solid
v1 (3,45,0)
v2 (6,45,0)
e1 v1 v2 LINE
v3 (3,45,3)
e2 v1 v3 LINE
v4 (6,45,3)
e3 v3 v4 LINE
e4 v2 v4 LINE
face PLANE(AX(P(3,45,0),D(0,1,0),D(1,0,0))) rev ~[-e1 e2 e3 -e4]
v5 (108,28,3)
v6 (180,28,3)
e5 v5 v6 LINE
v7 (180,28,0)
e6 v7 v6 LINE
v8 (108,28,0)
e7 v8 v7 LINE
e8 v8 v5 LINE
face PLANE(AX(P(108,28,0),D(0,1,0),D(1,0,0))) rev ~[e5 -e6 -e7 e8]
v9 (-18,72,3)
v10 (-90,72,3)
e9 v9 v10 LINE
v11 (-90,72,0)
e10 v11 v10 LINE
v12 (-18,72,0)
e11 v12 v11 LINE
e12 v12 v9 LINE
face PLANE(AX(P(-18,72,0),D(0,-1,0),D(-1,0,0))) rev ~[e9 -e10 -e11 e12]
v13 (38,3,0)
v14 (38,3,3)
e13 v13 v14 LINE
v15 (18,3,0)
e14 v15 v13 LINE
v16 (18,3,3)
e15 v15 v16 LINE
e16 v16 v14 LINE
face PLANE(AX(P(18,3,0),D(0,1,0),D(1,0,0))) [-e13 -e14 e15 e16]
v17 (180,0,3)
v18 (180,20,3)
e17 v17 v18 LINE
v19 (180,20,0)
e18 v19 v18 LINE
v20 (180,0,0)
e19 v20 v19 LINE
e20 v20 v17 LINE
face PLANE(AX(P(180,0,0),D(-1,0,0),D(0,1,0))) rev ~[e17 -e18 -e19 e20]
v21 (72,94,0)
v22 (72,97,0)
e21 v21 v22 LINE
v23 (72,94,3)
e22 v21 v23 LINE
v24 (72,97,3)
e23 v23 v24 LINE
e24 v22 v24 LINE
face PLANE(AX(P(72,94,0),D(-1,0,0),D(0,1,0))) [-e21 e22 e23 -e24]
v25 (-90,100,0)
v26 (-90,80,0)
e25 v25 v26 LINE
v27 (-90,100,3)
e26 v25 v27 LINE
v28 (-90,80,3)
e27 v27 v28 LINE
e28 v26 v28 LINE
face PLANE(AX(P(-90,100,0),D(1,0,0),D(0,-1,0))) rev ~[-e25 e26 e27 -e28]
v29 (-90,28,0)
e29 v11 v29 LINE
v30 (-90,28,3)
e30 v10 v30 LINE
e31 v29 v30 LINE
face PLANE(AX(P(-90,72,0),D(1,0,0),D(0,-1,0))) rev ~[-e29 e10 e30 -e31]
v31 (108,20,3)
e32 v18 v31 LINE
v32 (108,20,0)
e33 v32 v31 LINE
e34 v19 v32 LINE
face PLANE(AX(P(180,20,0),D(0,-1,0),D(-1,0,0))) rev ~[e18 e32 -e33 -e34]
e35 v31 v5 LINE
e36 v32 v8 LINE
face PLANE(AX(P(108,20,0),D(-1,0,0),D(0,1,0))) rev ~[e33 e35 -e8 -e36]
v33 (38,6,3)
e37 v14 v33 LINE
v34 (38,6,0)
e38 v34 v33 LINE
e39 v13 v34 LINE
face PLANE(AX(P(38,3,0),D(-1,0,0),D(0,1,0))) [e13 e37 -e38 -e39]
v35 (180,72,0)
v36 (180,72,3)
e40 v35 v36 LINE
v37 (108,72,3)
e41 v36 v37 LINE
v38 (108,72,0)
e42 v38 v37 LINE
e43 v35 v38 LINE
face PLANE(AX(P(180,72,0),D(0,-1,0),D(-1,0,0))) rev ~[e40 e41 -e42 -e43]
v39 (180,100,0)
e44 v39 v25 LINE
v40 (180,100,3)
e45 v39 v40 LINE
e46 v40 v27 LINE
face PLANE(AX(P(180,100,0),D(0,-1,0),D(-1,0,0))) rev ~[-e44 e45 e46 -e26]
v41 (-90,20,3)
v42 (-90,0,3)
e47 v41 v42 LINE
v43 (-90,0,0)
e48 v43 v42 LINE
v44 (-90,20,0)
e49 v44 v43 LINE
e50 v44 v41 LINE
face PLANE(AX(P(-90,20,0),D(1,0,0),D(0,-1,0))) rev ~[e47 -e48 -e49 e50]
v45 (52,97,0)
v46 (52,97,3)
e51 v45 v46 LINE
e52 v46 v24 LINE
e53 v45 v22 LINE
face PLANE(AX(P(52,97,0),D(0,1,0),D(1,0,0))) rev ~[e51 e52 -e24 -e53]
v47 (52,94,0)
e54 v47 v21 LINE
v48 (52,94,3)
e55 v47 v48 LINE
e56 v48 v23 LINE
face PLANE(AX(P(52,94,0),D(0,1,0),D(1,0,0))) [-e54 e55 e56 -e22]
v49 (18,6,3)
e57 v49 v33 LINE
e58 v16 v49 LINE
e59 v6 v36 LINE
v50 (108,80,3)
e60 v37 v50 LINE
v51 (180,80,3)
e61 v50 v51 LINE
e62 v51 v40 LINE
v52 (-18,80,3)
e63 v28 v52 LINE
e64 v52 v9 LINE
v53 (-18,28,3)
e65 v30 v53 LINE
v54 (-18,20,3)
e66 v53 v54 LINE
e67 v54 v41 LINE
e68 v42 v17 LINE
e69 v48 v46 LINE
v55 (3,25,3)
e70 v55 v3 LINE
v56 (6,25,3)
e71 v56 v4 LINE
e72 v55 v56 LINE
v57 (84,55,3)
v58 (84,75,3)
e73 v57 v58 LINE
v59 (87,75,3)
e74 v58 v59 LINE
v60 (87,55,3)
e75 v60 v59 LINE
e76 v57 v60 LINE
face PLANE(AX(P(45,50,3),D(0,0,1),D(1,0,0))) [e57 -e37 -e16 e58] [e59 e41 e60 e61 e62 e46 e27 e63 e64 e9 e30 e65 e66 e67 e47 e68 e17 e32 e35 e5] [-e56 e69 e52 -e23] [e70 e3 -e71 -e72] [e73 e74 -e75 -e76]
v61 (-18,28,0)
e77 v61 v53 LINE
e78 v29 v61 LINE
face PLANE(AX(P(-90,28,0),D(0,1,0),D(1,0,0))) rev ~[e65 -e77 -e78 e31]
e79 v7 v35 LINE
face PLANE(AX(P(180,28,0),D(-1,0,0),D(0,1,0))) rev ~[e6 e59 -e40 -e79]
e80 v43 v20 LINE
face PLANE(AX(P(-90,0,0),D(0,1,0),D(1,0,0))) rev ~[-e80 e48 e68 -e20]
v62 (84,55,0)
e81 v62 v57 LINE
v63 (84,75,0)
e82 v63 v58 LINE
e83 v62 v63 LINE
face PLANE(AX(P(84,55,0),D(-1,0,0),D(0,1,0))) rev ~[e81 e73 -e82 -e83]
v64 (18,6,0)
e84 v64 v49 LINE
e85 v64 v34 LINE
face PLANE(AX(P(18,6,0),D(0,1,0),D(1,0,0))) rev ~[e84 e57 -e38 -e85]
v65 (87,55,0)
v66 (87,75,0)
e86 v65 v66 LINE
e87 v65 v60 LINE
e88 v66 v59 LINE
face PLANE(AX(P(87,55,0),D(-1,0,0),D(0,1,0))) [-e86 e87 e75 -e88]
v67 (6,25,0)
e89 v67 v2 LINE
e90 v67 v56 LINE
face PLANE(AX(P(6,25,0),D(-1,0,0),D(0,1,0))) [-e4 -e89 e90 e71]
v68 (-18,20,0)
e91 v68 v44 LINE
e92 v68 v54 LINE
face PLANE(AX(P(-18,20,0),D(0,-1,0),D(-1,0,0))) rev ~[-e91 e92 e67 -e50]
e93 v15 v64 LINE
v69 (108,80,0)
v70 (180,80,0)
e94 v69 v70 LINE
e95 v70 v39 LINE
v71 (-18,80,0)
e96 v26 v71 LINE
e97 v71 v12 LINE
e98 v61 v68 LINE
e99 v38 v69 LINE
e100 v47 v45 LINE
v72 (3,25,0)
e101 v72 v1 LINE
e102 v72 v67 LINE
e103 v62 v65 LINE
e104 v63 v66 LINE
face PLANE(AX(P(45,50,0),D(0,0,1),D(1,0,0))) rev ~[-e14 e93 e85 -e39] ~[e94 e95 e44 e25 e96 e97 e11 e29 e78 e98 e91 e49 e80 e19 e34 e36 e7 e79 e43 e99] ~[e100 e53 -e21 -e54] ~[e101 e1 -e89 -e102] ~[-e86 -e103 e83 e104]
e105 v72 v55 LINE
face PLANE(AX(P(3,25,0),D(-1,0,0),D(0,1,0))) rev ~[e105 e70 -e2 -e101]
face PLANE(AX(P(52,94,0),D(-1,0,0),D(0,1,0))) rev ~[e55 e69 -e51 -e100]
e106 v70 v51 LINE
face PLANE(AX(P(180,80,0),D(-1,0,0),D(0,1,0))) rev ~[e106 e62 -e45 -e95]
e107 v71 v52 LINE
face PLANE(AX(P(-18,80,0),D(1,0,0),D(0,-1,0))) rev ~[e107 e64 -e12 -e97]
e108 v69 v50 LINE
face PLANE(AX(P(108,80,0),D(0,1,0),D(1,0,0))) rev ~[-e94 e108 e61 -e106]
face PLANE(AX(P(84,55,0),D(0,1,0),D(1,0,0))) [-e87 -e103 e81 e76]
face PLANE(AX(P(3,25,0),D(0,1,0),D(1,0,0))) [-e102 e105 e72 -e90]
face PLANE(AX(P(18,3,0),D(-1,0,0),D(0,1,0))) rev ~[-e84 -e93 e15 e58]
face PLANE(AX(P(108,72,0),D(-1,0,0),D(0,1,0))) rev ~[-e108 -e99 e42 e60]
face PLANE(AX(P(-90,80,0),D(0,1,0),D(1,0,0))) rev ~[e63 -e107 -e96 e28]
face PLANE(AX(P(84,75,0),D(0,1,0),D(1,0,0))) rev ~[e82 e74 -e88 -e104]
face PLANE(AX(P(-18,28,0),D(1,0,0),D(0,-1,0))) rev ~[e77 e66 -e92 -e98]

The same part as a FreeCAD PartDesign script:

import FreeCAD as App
import Part
import Sketcher

V = App.Vector
Q = App.Units.Quantity

doc = App.newDocument("Part")
params = doc.addObject("Spreadsheet::Sheet", "Params")
for row, (alias, value) in enumerate([
    ("sketch1_width", "72 mm"),
    ("sketch1_width2", "270 mm"),
    ("sketch1_width3", "20 mm"),
    ("sketch1_width4", "3 mm"),
    ("sketch1_height", "8 mm"),
    ("pad1_length", "3 mm"),
], start=1):
    params.set(f"A{row}", alias)
    params.set(f"B{row}", "=" + value)
    params.setAlias(f"B{row}", alias)

body = doc.addObject("PartDesign::Body", "Body")

# Sketch on XY plane
sketch1 = body.newObject("Sketcher::SketchObject", "Sketch")
sketch1.AttachmentSupport = (doc.getObject("XY_Plane"), [""])
sketch1.MapMode = "FlatFace"
sketch1.addGeometry([
    Part.LineSegment(V(180, 0, 0), V(180, 20, 0)),  # 0
    Part.LineSegment(V(180, 20, 0), V(108, 20, 0)),  # 1
    Part.LineSegment(V(108, 20, 0), V(108, 28, 0)),  # 2
    Part.LineSegment(V(108, 28, 0), V(180, 28, 0)),  # 3
    Part.LineSegment(V(180, 28, 0), V(180, 72, 0)),  # 4
    Part.LineSegment(V(180, 72, 0), V(108, 72, 0)),  # 5
    Part.LineSegment(V(108, 72, 0), V(108, 80, 0)),  # 6
    Part.LineSegment(V(108, 80, 0), V(180, 80, 0)),  # 7
    Part.LineSegment(V(180, 80, 0), V(180, 100, 0)),  # 8
    Part.LineSegment(V(180, 100, 0), V(-90, 100, 0)),  # 9
    Part.LineSegment(V(-90, 100, 0), V(-90, 80, 0)),  # 10
    Part.LineSegment(V(-90, 80, 0), V(-18, 80, 0)),  # 11
    Part.LineSegment(V(-18, 80, 0), V(-18, 72, 0)),  # 12
    Part.LineSegment(V(-18, 72, 0), V(-90, 72, 0)),  # 13
    Part.LineSegment(V(-90, 72, 0), V(-90, 28, 0)),  # 14
    Part.LineSegment(V(-90, 28, 0), V(-18, 28, 0)),  # 15
    Part.LineSegment(V(-18, 28, 0), V(-18, 20, 0)),  # 16
    Part.LineSegment(V(-18, 20, 0), V(-90, 20, 0)),  # 17
    Part.LineSegment(V(-90, 20, 0), V(-90, 0, 0)),  # 18
    Part.LineSegment(V(-90, 0, 0), V(180, 0, 0)),  # 19
    Part.LineSegment(V(38, 3, 0), V(18, 3, 0)),  # 20
    Part.LineSegment(V(18, 3, 0), V(18, 6, 0)),  # 21
    Part.LineSegment(V(18, 6, 0), V(38, 6, 0)),  # 22
    Part.LineSegment(V(38, 6, 0), V(38, 3, 0)),  # 23
    Part.LineSegment(V(6, 25, 0), V(3, 25, 0)),  # 24
    Part.LineSegment(V(3, 25, 0), V(3, 45, 0)),  # 25
    Part.LineSegment(V(3, 45, 0), V(6, 45, 0)),  # 26
    Part.LineSegment(V(6, 45, 0), V(6, 25, 0)),  # 27
    Part.LineSegment(V(87, 55, 0), V(84, 55, 0)),  # 28
    Part.LineSegment(V(84, 55, 0), V(84, 75, 0)),  # 29
    Part.LineSegment(V(84, 75, 0), V(87, 75, 0)),  # 30
    Part.LineSegment(V(87, 75, 0), V(87, 55, 0)),  # 31
    Part.LineSegment(V(72, 94, 0), V(52, 94, 0)),  # 32
    Part.LineSegment(V(52, 94, 0), V(52, 97, 0)),  # 33
    Part.LineSegment(V(52, 97, 0), V(72, 97, 0)),  # 34
    Part.LineSegment(V(72, 97, 0), V(72, 94, 0)),  # 35
], False)
sketch1.addConstraint([
    Sketcher.Constraint("Coincident", 0, 2, 1, 1),
    Sketcher.Constraint("Coincident", 1, 2, 2, 1),
    Sketcher.Constraint("Coincident", 2, 2, 3, 1),
    Sketcher.Constraint("Coincident", 3, 2, 4, 1),
    Sketcher.Constraint("Coincident", 4, 2, 5, 1),
    Sketcher.Constraint("Coincident", 5, 2, 6, 1),
    Sketcher.Constraint("Coincident", 6, 2, 7, 1),
    Sketcher.Constraint("Coincident", 7, 2, 8, 1),
    Sketcher.Constraint("Coincident", 8, 2, 9, 1),
    Sketcher.Constraint("Coincident", 9, 2, 10, 1),
    Sketcher.Constraint("Coincident", 10, 2, 11, 1),
    Sketcher.Constraint("Coincident", 11, 2, 12, 1),
    Sketcher.Constraint("Coincident", 12, 2, 13, 1),
    Sketcher.Constraint("Coincident", 13, 2, 14, 1),
    Sketcher.Constraint("Coincident", 14, 2, 15, 1),
    Sketcher.Constraint("Coincident", 15, 2, 16, 1),
    Sketcher.Constraint("Coincident", 16, 2, 17, 1),
    Sketcher.Constraint("Coincident", 17, 2, 18, 1),
    Sketcher.Constraint("Coincident", 18, 2, 19, 1),
    Sketcher.Constraint("Coincident", 19, 2, 0, 1),
    Sketcher.Constraint("Coincident", 20, 2, 21, 1),
    Sketcher.Constraint("Coincident", 21, 2, 22, 1),
    Sketcher.Constraint("Coincident", 22, 2, 23, 1),
    Sketcher.Constraint("Coincident", 23, 2, 20, 1),
    Sketcher.Constraint("Coincident", 24, 2, 25, 1),
    Sketcher.Constraint("Coincident", 25, 2, 26, 1),
    Sketcher.Constraint("Coincident", 26, 2, 27, 1),
    Sketcher.Constraint("Coincident", 27, 2, 24, 1),
    Sketcher.Constraint("Coincident", 28, 2, 29, 1),
    Sketcher.Constraint("Coincident", 29, 2, 30, 1),
    Sketcher.Constraint("Coincident", 30, 2, 31, 1),
    Sketcher.Constraint("Coincident", 31, 2, 28, 1),
    Sketcher.Constraint("Coincident", 32, 2, 33, 1),
    Sketcher.Constraint("Coincident", 33, 2, 34, 1),
    Sketcher.Constraint("Coincident", 34, 2, 35, 1),
    Sketcher.Constraint("Coincident", 35, 2, 32, 1),
    Sketcher.Constraint("Vertical", 0),
    Sketcher.Constraint("Horizontal", 1),
    Sketcher.Constraint("Vertical", 2),
    Sketcher.Constraint("Horizontal", 3),
    Sketcher.Constraint("Vertical", 4),
    Sketcher.Constraint("Horizontal", 5),
    Sketcher.Constraint("Vertical", 6),
    Sketcher.Constraint("Horizontal", 7),
    Sketcher.Constraint("Vertical", 8),
    Sketcher.Constraint("Horizontal", 9),
    Sketcher.Constraint("Vertical", 10),
    Sketcher.Constraint("Horizontal", 11),
    Sketcher.Constraint("Vertical", 12),
    Sketcher.Constraint("Horizontal", 13),
    Sketcher.Constraint("Vertical", 14),
    Sketcher.Constraint("Horizontal", 15),
    Sketcher.Constraint("Vertical", 16),
    Sketcher.Constraint("Horizontal", 17),
    Sketcher.Constraint("Vertical", 18),
    Sketcher.Constraint("Horizontal", 19),
    Sketcher.Constraint("Horizontal", 20),
    Sketcher.Constraint("Vertical", 21),
    Sketcher.Constraint("Horizontal", 22),
    Sketcher.Constraint("Vertical", 23),
    Sketcher.Constraint("Horizontal", 24),
    Sketcher.Constraint("Vertical", 25),
    Sketcher.Constraint("Horizontal", 26),
    Sketcher.Constraint("Vertical", 27),
    Sketcher.Constraint("Horizontal", 28),
    Sketcher.Constraint("Vertical", 29),
    Sketcher.Constraint("Horizontal", 30),
    Sketcher.Constraint("Vertical", 31),
    Sketcher.Constraint("Horizontal", 32),
    Sketcher.Constraint("Vertical", 33),
    Sketcher.Constraint("Horizontal", 34),
    Sketcher.Constraint("Vertical", 35),
    Sketcher.Constraint("PointOnObject", 18, 2, -1),
    Sketcher.Constraint("Horizontal", 7, 2, 10, 2),
    Sketcher.Constraint("Horizontal", 5, 2, 12, 2),
    Sketcher.Constraint("Horizontal", 3, 2, 14, 2),
    Sketcher.Constraint("Horizontal", 1, 2, 16, 2),
    Sketcher.Constraint("Vertical", 0, 2, 3, 2),
    Sketcher.Constraint("Vertical", 2, 2, 5, 2),
    Sketcher.Constraint("Vertical", 4, 2, 7, 2),
    Sketcher.Constraint("Vertical", 10, 2, 13, 2),
    Sketcher.Constraint("Vertical", 12, 2, 15, 2),
    Sketcher.Constraint("Vertical", 14, 2, 17, 2),
    Sketcher.Constraint("Equal", 7, 11),
    Sketcher.Constraint("Equal", 26, 28),
    Sketcher.Constraint("Equal", 22, 32),
    Sketcher.Constraint("Equal", 34, 0),
    Sketcher.Constraint("Equal", 2, 6),
    Sketcher.Constraint("Equal", 0, 8),
    Sketcher.Constraint("Equal", 30, 21),
    Sketcher.Constraint("Equal", 18, 25),
    Sketcher.Constraint("Equal", 27, 29),
    Sketcher.Constraint("Equal", 23, 33),
    Sketcher.Constraint("DistanceX", 1, 2, 1, 1, Q("72 mm")),
    Sketcher.Constraint("DistanceX", 9, 2, 9, 1, Q("270 mm")),
    Sketcher.Constraint("DistanceX", 20, 2, 20, 1, Q("20 mm")),
    Sketcher.Constraint("DistanceX", 24, 2, 24, 1, Q("3 mm")),
    Sketcher.Constraint("DistanceY", 2, 1, 2, 2, Q("8 mm")),
    Sketcher.Constraint("DistanceY", 4, 1, 4, 2, Q("44 mm")),
    Sketcher.Constraint("DistanceX", -1, 1, 0, 2, Q("180 mm")),
    Sketcher.Constraint("DistanceX", -1, 1, 20, 2, Q("18 mm")),
    Sketcher.Constraint("DistanceY", -1, 1, 20, 2, Q("3 mm")),
    Sketcher.Constraint("DistanceX", -1, 1, 24, 2, Q("3 mm")),
    Sketcher.Constraint("DistanceY", -1, 1, 24, 2, Q("25 mm")),
    Sketcher.Constraint("DistanceX", -1, 1, 28, 2, Q("84 mm")),
    Sketcher.Constraint("DistanceY", -1, 1, 28, 2, Q("55 mm")),
    Sketcher.Constraint("DistanceX", -1, 1, 32, 2, Q("52 mm")),
    Sketcher.Constraint("DistanceY", -1, 1, 32, 2, Q("94 mm")),
])
sketch1.setExpression("Constraints[93]", "Params.sketch1_width")
sketch1.setExpression("Constraints[94]", "Params.sketch1_width2")
sketch1.setExpression("Constraints[95]", "Params.sketch1_width3")
sketch1.setExpression("Constraints[96]", "Params.sketch1_width4")
sketch1.setExpression("Constraints[97]", "Params.sketch1_height")
pad1 = body.newObject("PartDesign::Pad", "Pad")
pad1.Profile = sketch1
pad1.setExpression("Length", "Params.pad1_length")

doc.recompute()
